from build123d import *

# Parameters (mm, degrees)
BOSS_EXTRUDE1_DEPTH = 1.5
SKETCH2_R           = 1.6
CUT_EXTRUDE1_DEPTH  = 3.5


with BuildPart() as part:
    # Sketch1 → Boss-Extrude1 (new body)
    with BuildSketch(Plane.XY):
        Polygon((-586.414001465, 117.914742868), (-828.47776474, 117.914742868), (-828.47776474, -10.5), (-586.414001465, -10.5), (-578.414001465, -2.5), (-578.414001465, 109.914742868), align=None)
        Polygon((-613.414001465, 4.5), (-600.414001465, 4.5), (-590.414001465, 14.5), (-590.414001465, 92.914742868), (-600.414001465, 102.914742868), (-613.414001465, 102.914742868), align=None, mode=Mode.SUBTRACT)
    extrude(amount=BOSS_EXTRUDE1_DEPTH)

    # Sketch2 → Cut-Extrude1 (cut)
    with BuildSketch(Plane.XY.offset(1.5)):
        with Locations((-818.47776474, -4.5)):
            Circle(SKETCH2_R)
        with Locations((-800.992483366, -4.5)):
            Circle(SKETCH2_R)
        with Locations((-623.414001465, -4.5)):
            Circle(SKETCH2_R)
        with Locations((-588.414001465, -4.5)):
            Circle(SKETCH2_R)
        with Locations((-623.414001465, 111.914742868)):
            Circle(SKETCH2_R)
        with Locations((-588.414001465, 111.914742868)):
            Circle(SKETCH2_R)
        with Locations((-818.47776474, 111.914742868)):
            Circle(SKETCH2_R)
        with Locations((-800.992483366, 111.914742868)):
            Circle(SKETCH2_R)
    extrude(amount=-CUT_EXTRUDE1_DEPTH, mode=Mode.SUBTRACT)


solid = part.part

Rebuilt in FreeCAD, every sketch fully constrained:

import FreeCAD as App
import Part
import Sketcher
from FreeCAD import Vector


def add_polygon(sketch, points):
    """Adds a closed chain of lines whose ends are joined by coincident constraints."""
    first, n = sketch.GeometryCount, len(points)
    for a, b in zip(points, points[1:] + points[:1]):
        sketch.addGeometry(Part.LineSegment(App.Vector(*a, 0), App.Vector(*b, 0)), False)
    for i in range(n):
        sketch.addConstraint(Sketcher.Constraint("Coincident", first + i, 2, first + (i + 1) % n, 1))

doc = App.newDocument("Part")
body = doc.addObject("PartDesign::Body", "Body")

# Sketch on XY plane
sketch1 = doc.addObject("Sketcher::SketchObject", "Sketch")
body.addObject(sketch1)
sketch1.AttachmentSupport = (doc.XY_Plane, [""])
sketch1.MapMode = "FlatFace"
add_polygon(sketch1, [(-586, 118), (-828, 118), (-828, -10), (-586, -10), (-578, -2), (-578, 110)])  # lines 0-5
add_polygon(sketch1, [(-600, 4), (-613, 4), (-613, 103), (-600, 103), (-590, 93), (-590, 14)])  # lines 6-11
sketch1.addConstraint(Sketcher.Constraint("Horizontal", 0))
sketch1.addConstraint(Sketcher.Constraint("Vertical", 1))
sketch1.addConstraint(Sketcher.Constraint("Horizontal", 2))
sketch1.addConstraint(Sketcher.Constraint("Vertical", 4))
sketch1.addConstraint(Sketcher.Constraint("Horizontal", 6))
sketch1.addConstraint(Sketcher.Constraint("Vertical", 7))
sketch1.addConstraint(Sketcher.Constraint("Horizontal", 8))
sketch1.addConstraint(Sketcher.Constraint("Vertical", 10))
sketch1.addConstraint(Sketcher.Constraint("Perpendicular", 3, 5))
sketch1.addConstraint(Sketcher.Constraint("Parallel", 5, 9))
sketch1.addConstraint(Sketcher.Constraint("Perpendicular", 9, 11))
sketch1.addConstraint(Sketcher.Constraint("Vertical", 2, 2, 5, 2))
sketch1.addConstraint(Sketcher.Constraint("Vertical", 8, 2, 11, 2))
sketch1.addConstraint(Sketcher.Constraint("Equal", 3, 5))
sketch1.addConstraint(Sketcher.Constraint("DistanceX", 6, 2, 6, 1, 13.0))
sketch1.addConstraint(Sketcher.Constraint("DistanceX", 2, 2, 3, 2, 8.0))
sketch1.addConstraint(Sketcher.Constraint("DistanceX", 6, 2, 2, 2, 27.0))
sketch1.addConstraint(Sketcher.Constraint("DistanceY", 2, 2, 6, 2, 15.0))
sketch1.addConstraint(Sketcher.Constraint("DistanceY", 7, 2, 5, 2, 15.0))
sketch1.addConstraint(Sketcher.Constraint("DistanceX", 8, 2, 9, 2, 10.0))
sketch1.addConstraint(Sketcher.Constraint("DistanceY", 1, 2, -1, 1, 10.5))
sketch1.addConstraint(Sketcher.Constraint("DistanceX", 2, 2, -1, 1, 586.414001))
sketch1.addConstraint(Sketcher.Constraint("DistanceX", 0, 2, 0, 1, 242.063763))
sketch1.addConstraint(Sketcher.Constraint("DistanceY", 1, 2, 1, 1, 128.414743))
pad1 = doc.addObject("PartDesign::Pad", "Pad")
body.addObject(pad1)
pad1.Profile = sketch1
pad1.Length = 1.5

# Sketch on XY plane
sketch2 = doc.addObject("Sketcher::SketchObject", "Sketch001")
body.addObject(sketch2)
sketch2.AttachmentSupport = (doc.XY_Plane, [""])
sketch2.MapMode = "FlatFace"
sketch2.AttachmentOffset = App.Placement(Vector(0, 0, 1.5), App.Rotation())
sketch2.addGeometry(Part.Circle(Vector(-818.5, -4.5, 0), Vector(0, 0, 1), 1.6), False)
sketch2.addGeometry(Part.Circle(Vector(-801, -4.5, 0), Vector(0, 0, 1), 1.6), False)
sketch2.addGeometry(Part.Circle(Vector(-623.4, -4.5, 0), Vector(0, 0, 1), 1.6), False)
sketch2.addGeometry(Part.Circle(Vector(-588.4, -4.5, 0), Vector(0, 0, 1), 1.6), False)
sketch2.addGeometry(Part.Circle(Vector(-623.4, 111.9, 0), Vector(0, 0, 1), 1.6), False)
sketch2.addGeometry(Part.Circle(Vector(-588.4, 111.9, 0), Vector(0, 0, 1), 1.6), False)
sketch2.addGeometry(Part.Circle(Vector(-818.5, 111.9, 0), Vector(0, 0, 1), 1.6), False)
sketch2.addGeometry(Part.Circle(Vector(-801, 111.9, 0), Vector(0, 0, 1), 1.6), False)
sketch2.addConstraint(Sketcher.Constraint("Equal", 0, 1))
sketch2.addConstraint(Sketcher.Constraint("Equal", 1, 2))
sketch2.addConstraint(Sketcher.Constraint("Equal", 2, 3))
sketch2.addConstraint(Sketcher.Constraint("Equal", 3, 4))
sketch2.addConstraint(Sketcher.Constraint("Equal", 4, 5))
sketch2.addConstraint(Sketcher.Constraint("Equal", 5, 6))
sketch2.addConstraint(Sketcher.Constraint("Equal", 6, 7))
sketch2.addConstraint(Sketcher.Constraint("Horizontal", 0, 3, 1, 3))
sketch2.addConstraint(Sketcher.Constraint("Horizontal", 1, 3, 2, 3))
sketch2.addConstraint(Sketcher.Constraint("Horizontal", 2, 3, 3, 3))
sketch2.addConstraint(Sketcher.Constraint("Horizontal", 4, 3, 5, 3))
sketch2.addConstraint(Sketcher.Constraint("Horizontal", 5, 3, 6, 3))
sketch2.addConstraint(Sketcher.Constraint("Horizontal", 6, 3, 7, 3))
sketch2.addConstraint(Sketcher.Constraint("Vertical", 2, 3, 4, 3))
sketch2.addConstraint(Sketcher.Constraint("Vertical", 3, 3, 5, 3))
sketch2.addConstraint(Sketcher.Constraint("Vertical", 0, 3, 6, 3))
sketch2.addConstraint(Sketcher.Constraint("Vertical", 1, 3, 7, 3))
sketch2.addConstraint(Sketcher.Constraint("Diameter", 0, 3.2))
sketch2.addConstraint(Sketcher.Constraint("DistanceX", 2, 3, 3, 3, 35.0))
sketch2.addConstraint(Sketcher.Constraint("DistanceY", 0, 3, -1, 1, 4.5))
sketch2.addConstraint(Sketcher.Constraint("DistanceX", 2, 3, -1, 1, 623.414001))
sketch2.addConstraint(Sketcher.Constraint("DistanceX", 0, 3, 1, 3, 17.485281))
sketch2.addConstraint(Sketcher.Constraint("DistanceX", 1, 3, 2, 3, 177.578482))
sketch2.addConstraint(Sketcher.Constraint("DistanceY", -1, 1, 4, 3, 111.914743))
pocket1 = doc.addObject("PartDesign::Pocket", "Pocket")
body.addObject(pocket1)
pocket1.Profile = sketch2
pocket1.Length = 3.5

doc.recompute()
